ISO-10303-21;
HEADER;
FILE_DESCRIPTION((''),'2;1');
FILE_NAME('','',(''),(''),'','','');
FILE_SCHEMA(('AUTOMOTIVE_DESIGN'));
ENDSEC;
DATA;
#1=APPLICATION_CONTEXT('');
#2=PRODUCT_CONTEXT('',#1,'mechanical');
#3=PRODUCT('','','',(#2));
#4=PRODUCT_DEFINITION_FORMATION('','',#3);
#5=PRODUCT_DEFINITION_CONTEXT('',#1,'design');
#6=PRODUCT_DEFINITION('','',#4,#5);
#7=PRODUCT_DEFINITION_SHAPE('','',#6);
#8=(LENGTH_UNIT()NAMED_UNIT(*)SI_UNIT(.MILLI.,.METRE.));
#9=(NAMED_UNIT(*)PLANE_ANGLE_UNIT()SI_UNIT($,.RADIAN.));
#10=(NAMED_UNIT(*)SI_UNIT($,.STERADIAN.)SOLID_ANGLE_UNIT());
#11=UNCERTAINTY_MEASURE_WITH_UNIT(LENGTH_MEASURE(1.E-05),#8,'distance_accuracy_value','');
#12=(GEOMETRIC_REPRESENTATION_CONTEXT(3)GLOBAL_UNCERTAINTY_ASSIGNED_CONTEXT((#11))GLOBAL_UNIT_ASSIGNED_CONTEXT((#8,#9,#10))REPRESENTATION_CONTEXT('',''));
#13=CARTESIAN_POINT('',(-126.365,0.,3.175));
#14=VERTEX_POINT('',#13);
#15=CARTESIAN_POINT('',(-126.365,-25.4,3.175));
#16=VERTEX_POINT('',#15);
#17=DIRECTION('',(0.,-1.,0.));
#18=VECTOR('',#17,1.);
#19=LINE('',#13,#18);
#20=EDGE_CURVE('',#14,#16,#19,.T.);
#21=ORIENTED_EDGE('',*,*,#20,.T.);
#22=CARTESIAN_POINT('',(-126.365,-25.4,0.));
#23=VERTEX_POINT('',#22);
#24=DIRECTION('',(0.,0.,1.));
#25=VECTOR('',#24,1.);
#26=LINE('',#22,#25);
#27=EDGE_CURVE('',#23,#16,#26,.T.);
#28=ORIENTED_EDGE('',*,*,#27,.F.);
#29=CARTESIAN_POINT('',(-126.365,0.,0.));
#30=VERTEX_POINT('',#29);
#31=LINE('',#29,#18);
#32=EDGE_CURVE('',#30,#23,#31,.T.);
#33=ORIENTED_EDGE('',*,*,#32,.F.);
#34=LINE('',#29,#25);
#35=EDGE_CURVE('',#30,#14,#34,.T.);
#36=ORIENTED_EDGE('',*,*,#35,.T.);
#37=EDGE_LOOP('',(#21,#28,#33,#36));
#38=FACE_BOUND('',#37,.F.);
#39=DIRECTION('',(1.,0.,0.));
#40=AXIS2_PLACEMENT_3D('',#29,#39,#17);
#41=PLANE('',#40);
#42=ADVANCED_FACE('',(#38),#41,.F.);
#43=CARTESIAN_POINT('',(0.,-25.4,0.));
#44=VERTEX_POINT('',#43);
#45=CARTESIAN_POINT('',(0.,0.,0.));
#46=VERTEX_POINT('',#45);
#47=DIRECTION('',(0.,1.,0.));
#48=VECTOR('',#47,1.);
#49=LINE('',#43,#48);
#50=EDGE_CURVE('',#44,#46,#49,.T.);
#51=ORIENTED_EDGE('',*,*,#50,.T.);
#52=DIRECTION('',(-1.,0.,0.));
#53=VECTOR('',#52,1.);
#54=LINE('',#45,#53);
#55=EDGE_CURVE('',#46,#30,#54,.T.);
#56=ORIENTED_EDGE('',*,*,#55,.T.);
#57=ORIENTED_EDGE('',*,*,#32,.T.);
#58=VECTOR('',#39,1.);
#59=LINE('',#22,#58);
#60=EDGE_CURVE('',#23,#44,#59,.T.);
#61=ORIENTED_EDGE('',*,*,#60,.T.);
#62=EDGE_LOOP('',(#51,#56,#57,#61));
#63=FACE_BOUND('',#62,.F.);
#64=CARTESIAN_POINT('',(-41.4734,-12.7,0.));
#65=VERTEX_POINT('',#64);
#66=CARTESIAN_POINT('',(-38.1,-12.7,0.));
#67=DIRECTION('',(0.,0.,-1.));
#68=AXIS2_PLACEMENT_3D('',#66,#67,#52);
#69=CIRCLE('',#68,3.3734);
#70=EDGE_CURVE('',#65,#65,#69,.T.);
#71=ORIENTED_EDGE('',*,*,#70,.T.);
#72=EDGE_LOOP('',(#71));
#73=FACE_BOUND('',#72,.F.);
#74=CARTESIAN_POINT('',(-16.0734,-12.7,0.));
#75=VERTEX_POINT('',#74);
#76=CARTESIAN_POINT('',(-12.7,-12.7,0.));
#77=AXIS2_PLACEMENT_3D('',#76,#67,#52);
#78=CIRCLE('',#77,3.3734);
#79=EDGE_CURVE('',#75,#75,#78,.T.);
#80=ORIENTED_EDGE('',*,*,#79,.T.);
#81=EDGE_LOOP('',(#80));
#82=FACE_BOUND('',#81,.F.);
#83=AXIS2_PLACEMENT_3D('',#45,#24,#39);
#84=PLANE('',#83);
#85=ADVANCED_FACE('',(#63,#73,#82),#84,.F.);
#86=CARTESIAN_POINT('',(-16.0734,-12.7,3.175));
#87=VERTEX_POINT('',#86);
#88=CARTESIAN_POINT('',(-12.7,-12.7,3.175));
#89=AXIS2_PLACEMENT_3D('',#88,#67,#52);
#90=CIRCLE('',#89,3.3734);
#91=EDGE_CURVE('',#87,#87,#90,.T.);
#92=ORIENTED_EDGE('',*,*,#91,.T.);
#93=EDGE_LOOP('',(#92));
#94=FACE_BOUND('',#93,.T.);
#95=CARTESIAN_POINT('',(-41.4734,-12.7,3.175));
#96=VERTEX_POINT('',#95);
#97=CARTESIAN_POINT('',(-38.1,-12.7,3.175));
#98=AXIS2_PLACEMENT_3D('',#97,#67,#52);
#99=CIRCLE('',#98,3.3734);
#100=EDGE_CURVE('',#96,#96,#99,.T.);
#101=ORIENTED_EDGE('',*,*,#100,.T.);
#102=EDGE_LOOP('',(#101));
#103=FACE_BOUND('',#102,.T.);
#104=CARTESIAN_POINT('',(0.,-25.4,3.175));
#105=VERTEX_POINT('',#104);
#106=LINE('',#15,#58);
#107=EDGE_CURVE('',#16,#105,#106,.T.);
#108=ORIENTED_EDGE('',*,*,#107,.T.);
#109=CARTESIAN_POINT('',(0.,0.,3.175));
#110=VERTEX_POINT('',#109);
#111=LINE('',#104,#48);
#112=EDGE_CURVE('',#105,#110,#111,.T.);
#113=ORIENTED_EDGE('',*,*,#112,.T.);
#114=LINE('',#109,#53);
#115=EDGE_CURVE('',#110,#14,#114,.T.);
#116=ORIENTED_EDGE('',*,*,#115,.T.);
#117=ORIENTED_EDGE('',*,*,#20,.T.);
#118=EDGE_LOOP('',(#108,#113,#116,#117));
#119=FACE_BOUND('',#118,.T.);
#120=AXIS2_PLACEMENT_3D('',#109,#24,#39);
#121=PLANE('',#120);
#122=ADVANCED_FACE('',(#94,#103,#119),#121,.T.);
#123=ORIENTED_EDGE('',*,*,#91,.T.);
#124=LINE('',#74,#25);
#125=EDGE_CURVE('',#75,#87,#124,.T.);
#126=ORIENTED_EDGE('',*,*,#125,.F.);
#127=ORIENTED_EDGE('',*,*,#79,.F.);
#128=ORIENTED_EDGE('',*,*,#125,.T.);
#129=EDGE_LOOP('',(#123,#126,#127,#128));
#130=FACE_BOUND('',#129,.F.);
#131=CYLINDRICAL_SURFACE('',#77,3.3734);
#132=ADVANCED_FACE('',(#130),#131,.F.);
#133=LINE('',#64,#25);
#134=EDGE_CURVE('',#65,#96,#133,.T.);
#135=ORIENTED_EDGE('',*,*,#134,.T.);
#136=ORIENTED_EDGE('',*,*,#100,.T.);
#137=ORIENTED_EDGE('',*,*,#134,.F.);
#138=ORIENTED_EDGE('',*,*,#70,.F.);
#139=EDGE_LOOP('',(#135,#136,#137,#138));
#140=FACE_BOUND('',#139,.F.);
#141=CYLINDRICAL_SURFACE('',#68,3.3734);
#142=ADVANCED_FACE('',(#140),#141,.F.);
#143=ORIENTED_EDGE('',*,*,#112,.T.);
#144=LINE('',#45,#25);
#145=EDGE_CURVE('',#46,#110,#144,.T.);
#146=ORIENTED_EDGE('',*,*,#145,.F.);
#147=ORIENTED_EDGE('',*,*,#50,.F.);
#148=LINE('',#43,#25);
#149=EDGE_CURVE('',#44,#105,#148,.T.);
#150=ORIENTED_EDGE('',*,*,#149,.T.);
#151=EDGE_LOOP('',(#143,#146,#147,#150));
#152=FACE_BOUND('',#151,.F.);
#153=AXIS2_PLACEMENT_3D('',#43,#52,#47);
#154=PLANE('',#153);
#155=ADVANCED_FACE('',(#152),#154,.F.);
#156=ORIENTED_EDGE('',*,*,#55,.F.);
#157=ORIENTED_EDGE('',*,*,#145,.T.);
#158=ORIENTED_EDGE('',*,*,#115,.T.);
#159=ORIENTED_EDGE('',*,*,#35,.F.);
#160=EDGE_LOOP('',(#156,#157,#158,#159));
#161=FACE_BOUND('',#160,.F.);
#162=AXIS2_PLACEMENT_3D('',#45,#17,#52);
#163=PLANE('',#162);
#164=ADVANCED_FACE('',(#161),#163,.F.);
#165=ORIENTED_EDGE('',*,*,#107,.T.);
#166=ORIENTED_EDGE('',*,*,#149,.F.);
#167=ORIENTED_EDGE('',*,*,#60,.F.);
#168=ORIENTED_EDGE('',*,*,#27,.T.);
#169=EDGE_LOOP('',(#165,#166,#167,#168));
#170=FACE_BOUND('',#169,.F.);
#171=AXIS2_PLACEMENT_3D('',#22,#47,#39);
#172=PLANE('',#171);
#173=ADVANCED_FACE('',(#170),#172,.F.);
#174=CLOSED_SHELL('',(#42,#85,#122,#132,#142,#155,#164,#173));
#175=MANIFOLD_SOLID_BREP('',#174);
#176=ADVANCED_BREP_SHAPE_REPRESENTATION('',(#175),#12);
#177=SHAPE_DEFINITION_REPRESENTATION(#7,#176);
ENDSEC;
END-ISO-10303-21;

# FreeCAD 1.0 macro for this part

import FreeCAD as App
import Part
import Sketcher
Q = App.Units.Quantity


def add_polygon(sketch, points):
    """Adds a closed chain of lines whose ends are joined by coincident constraints."""
    first, n = sketch.GeometryCount, len(points)
    for a, b in zip(points, points[1:] + points[:1]):
        sketch.addGeometry(Part.LineSegment(App.Vector(*a, 0), App.Vector(*b, 0)), False)
    for i in range(n):
        sketch.addConstraint(Sketcher.Constraint("Coincident", first + i, 2, first + (i + 1) % n, 1))

doc = App.newDocument("Part")
body = doc.addObject("PartDesign::Body", "Body")

# Sketch on XY plane
sketch1 = body.newObject("Sketcher::SketchObject", "Sketch")
sketch1.AttachmentSupport = (doc.getObject("XY_Plane"), [""])
sketch1.MapMode = "FlatFace"
add_polygon(sketch1, [(0, -25.4), (0, 0), (-126.365, 0), (-126.365, -25.4)])  # lines 0-3
sketch1.addConstraint(Sketcher.Constraint("Vertical", 0))
sketch1.addConstraint(Sketcher.Constraint("Horizontal", 1))
sketch1.addConstraint(Sketcher.Constraint("Vertical", 2))
sketch1.addConstraint(Sketcher.Constraint("Horizontal", 3))
sketch1.addConstraint(Sketcher.Constraint("Coincident", 0, 2, -1, 1))
sketch1.addConstraint(Sketcher.Constraint("DistanceY", 0, 1, 0, 2, Q("1 in")))
sketch1.addConstraint(Sketcher.Constraint("DistanceX", 1, 2, 1, 1, Q("4.975 in")))
pad1 = body.newObject("PartDesign::Pad", "Pad")
pad1.Profile = sketch1
pad1.Length = Q("0.125 in")

# Sketch on XY plane
sketch2 = body.newObject("Sketcher::SketchObject", "Sketch001")
sketch2.AttachmentSupport = (doc.getObject("XY_Plane"), [""])
sketch2.MapMode = "FlatFace"
sketch2.addGeometry(Part.Circle(App.Vector(-38.1, -12.7, 0), App.Vector(0, 0, 1), 3.3734), False)
sketch2.addGeometry(Part.Circle(App.Vector(-12.7, -12.7, 0), App.Vector(0, 0, 1), 3.3734), False)
sketch2.addConstraint(Sketcher.Constraint("Equal", 0, 1))
sketch2.addConstraint(Sketcher.Constraint("Horizontal", 0, 3, 1, 3))
sketch2.addConstraint(Sketcher.Constraint("Diameter", 0, Q("0.265622 in")))
sketch2.addConstraint(Sketcher.Constraint("DistanceX", 0, 3, 1, 3, Q("1 in")))
sketch2.addConstraint(Sketcher.Constraint("DistanceY", 0, 3, -1, 1, Q("0.5 in")))
sketch2.addConstraint(Sketcher.Constraint("DistanceX", 1, 3, -1, 1, Q("0.5 in")))
pocket1 = body.newObject("PartDesign::Pocket", "Pocket")
pocket1.Profile = sketch2
pocket1.Length = Q("0.125 in")
pocket1.Reversed = True

doc.recompute()
